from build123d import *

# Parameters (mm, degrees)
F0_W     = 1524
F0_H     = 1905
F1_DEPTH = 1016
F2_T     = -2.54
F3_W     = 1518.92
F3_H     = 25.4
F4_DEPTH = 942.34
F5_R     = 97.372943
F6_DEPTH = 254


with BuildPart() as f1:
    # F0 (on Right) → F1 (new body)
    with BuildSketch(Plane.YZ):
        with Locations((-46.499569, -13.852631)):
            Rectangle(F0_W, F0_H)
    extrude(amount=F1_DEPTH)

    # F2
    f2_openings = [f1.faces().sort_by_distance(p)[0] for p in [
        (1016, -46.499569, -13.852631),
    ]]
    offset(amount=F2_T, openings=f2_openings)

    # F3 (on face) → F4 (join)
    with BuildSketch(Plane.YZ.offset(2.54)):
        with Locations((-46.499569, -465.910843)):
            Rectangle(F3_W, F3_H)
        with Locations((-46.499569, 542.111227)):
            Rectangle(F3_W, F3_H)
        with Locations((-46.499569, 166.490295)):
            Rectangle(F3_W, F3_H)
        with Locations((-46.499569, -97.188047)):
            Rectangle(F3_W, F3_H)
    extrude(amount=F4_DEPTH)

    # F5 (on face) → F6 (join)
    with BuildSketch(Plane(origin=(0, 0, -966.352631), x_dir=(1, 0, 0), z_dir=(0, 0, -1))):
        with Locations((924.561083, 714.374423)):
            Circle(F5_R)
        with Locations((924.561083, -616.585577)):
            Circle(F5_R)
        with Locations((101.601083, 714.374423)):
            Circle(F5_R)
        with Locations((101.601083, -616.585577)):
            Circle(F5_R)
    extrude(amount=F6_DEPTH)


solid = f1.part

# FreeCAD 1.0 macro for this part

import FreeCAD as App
import Part
import Sketcher

V = App.Vector
Q = App.Units.Quantity


def faces_at(feature, points):
    """Names of the faces that lie closest to the given points."""
    faces = feature.Shape.Faces
    near = lambda p: min(range(len(faces)), key=lambda i: faces[i].distToShape(Part.Vertex(*p))[0])
    return sorted({f"Face{near(p) + 1}" for p in points})

doc = App.newDocument("Part")
body = doc.addObject("PartDesign::Body", "Body")

sketch1 = body.newObject("Sketcher::SketchObject", "Sketch")
sketch1.AttachmentSupport = (doc.getObject("YZ_Plane"), [""])
sketch1.MapMode = "FlatFace"
sketch1.addGeometry([
    Part.LineSegment(V(-808.499569, 938.647369, 0), V(-808.499569, -966.352631, 0)),
    Part.LineSegment(V(-808.499569, -966.352631, 0), V(715.500431, -966.352631, 0)),
    Part.LineSegment(V(715.500431, -966.352631, 0), V(715.500431, 938.647369, 0)),
    Part.LineSegment(V(715.500431, 938.647369, 0), V(-808.499569, 938.647369, 0)),
], False)
sketch1.addConstraint([
    Sketcher.Constraint("Coincident", 0, 2, 1, 1),
    Sketcher.Constraint("Coincident", 1, 2, 2, 1),
    Sketcher.Constraint("Coincident", 2, 2, 3, 1),
    Sketcher.Constraint("Coincident", 3, 2, 0, 1),
    Sketcher.Constraint("Vertical", 0),
    Sketcher.Constraint("Horizontal", 1),
    Sketcher.Constraint("Vertical", 2),
    Sketcher.Constraint("Horizontal", 3),
    Sketcher.Constraint("DistanceX", 1, 1, 1, 2, Q("60 in")),
    Sketcher.Constraint("DistanceY", 0, 2, 0, 1, Q("75 in")),
    Sketcher.Constraint("DistanceX", 0, 2, -1, 1, Q("808.499569 mm")),
    Sketcher.Constraint("DistanceY", 0, 2, -1, 1, Q("966.352631 mm")),
])
pad1 = body.newObject("PartDesign::Pad", "Pad")
pad1.Profile = sketch1
pad1.Length = Q("40 in")
doc.recompute()

thickness = body.newObject("PartDesign::Thickness", "Thickness")
thickness.Base = (pad1, faces_at(pad1, [(1016, -46.5, -13.853)]))
thickness.Value = Q("0.1 in")
thickness.Reversed = True
thickness.Join = "Arc"

sketch2 = body.newObject("Sketcher::SketchObject", "Sketch001")
sketch2.AttachmentSupport = (doc.getObject("YZ_Plane"), [""])
sketch2.MapMode = "FlatFace"
sketch2.AttachmentOffset = App.Placement(V(0, 0, 0.1 * 25.4), App.Rotation())
sketch2.addGeometry([
    Part.LineSegment(V(-805.959569, -453.210843, 0), V(-805.959569, -478.610843, 0)),
    Part.LineSegment(V(-805.959569, -478.610843, 0), V(712.960431, -478.610843, 0)),
    Part.LineSegment(V(712.960431, -478.610843, 0), V(712.960431, -453.210843, 0)),
    Part.LineSegment(V(712.960431, -453.210843, 0), V(-805.959569, -453.210843, 0)),
    Part.LineSegment(V(-805.959569, 554.811227, 0), V(-805.959569, 529.411227, 0)),
    Part.LineSegment(V(-805.959569, 529.411227, 0), V(712.960431, 529.411227, 0)),
    Part.LineSegment(V(712.960431, 529.411227, 0), V(712.960431, 554.811227, 0)),
    Part.LineSegment(V(712.960431, 554.811227, 0), V(-805.959569, 554.811227, 0)),
    Part.LineSegment(V(-805.959569, 179.190295, 0), V(-805.959569, 153.790295, 0)),
    Part.LineSegment(V(-805.959569, 153.790295, 0), V(712.960431, 153.790295, 0)),
    Part.LineSegment(V(712.960431, 153.790295, 0), V(712.960431, 179.190295, 0)),
    Part.LineSegment(V(712.960431, 179.190295, 0), V(-805.959569, 179.190295, 0)),
    Part.LineSegment(V(-805.959569, -84.488047, 0), V(-805.959569, -109.888047, 0)),
    Part.LineSegment(V(-805.959569, -109.888047, 0), V(712.960431, -109.888047, 0)),
    Part.LineSegment(V(712.960431, -109.888047, 0), V(712.960431, -84.488047, 0)),
    Part.LineSegment(V(712.960431, -84.488047, 0), V(-805.959569, -84.488047, 0)),
], False)
sketch2.addConstraint([
    Sketcher.Constraint("Coincident", 0, 2, 1, 1),
    Sketcher.Constraint("Coincident", 1, 2, 2, 1),
    Sketcher.Constraint("Coincident", 2, 2, 3, 1),
    Sketcher.Constraint("Coincident", 3, 2, 0, 1),
    Sketcher.Constraint("Coincident", 4, 2, 5, 1),
    Sketcher.Constraint("Coincident", 5, 2, 6, 1),
    Sketcher.Constraint("Coincident", 6, 2, 7, 1),
    Sketcher.Constraint("Coincident", 7, 2, 4, 1),
    Sketcher.Constraint("Coincident", 8, 2, 9, 1),
    Sketcher.Constraint("Coincident", 9, 2, 10, 1),
    Sketcher.Constraint("Coincident", 10, 2, 11, 1),
    Sketcher.Constraint("Coincident", 11, 2, 8, 1),
    Sketcher.Constraint("Coincident", 12, 2, 13, 1),
    Sketcher.Constraint("Coincident", 13, 2, 14, 1),
    Sketcher.Constraint("Coincident", 14, 2, 15, 1),
    Sketcher.Constraint("Coincident", 15, 2, 12, 1),
    Sketcher.Constraint("Vertical", 0),
    Sketcher.Constraint("Horizontal", 1),
    Sketcher.Constraint("Vertical", 2),
    Sketcher.Constraint("Horizontal", 3),
    Sketcher.Constraint("Vertical", 4),
    Sketcher.Constraint("Horizontal", 5),
    Sketcher.Constraint("Vertical", 6),
    Sketcher.Constraint("Horizontal", 7),
    Sketcher.Constraint("Vertical", 8),
    Sketcher.Constraint("Horizontal", 9),
    Sketcher.Constraint("Vertical", 10),
    Sketcher.Constraint("Horizontal", 11),
    Sketcher.Constraint("Vertical", 12),
    Sketcher.Constraint("Horizontal", 13),
    Sketcher.Constraint("Vertical", 14),
    Sketcher.Constraint("Horizontal", 15),
    Sketcher.Constraint("Vertical", 3, 2, 4, 2),
    Sketcher.Constraint("Vertical", 2, 2, 5, 2),
    Sketcher.Constraint("Vertical", 7, 2, 8, 2),
    Sketcher.Constraint("Vertical", 6, 2, 9, 2),
    Sketcher.Constraint("Vertical", 11, 2, 12, 2),
    Sketcher.Constraint("Vertical", 10, 2, 13, 2),
    Sketcher.Constraint("Equal", 2, 4),
    Sketcher.Constraint("Equal", 6, 8),
    Sketcher.Constraint("Equal", 10, 12),
    Sketcher.Constraint("DistanceY", 0, 2, 0, 1, Q("1 in")),
    Sketcher.Constraint("DistanceX", 1, 1, 1, 2, Q("59.8 in")),
    Sketcher.Constraint("DistanceX", 0, 2, -1, 1, Q("805.959569 mm")),
    Sketcher.Constraint("DistanceY", 3, 2, 4, 2, Q("982.62207 mm")),
    Sketcher.Constraint("DistanceY", 8, 2, 7, 2, Q("401.020932 mm")),
    Sketcher.Constraint("DistanceY", 12, 2, 8, 2, Q("263.678342 mm")),
    Sketcher.Constraint("DistanceY", 0, 2, -1, 1, Q("478.610843 mm")),
])
pad2 = body.newObject("PartDesign::Pad", "Pad001")
pad2.Profile = sketch2
pad2.Length = Q("37.1 in")

sketch3 = body.newObject("Sketcher::SketchObject", "Sketch002")
sketch3.AttachmentSupport = (doc.getObject("XY_Plane"), [""])
sketch3.MapMode = "FlatFace"
sketch3.AttachmentOffset = App.Placement(V(0, 0, -966.352631), App.Rotation())
sketch3.addGeometry([
    Part.Circle(V(924.561083, -714.374423, 0), V(0, 0, 1), 97.372943),
    Part.Circle(V(924.561083, 616.585577, 0), V(0, 0, 1), 97.372943),
    Part.Circle(V(101.601083, -714.374423, 0), V(0, 0, 1), 97.372943),
    Part.Circle(V(101.601083, 616.585577, 0), V(0, 0, 1), 97.372943),
], False)
sketch3.addConstraint([
    Sketcher.Constraint("Equal", 0, 1),
    Sketcher.Constraint("Equal", 1, 2),
    Sketcher.Constraint("Equal", 2, 3),
    Sketcher.Constraint("Horizontal", 0, 3, 2, 3),
    Sketcher.Constraint("Horizontal", 1, 3, 3, 3),
    Sketcher.Constraint("Vertical", 0, 3, 1, 3),
    Sketcher.Constraint("Vertical", 2, 3, 3, 3),
    Sketcher.Constraint("DistanceY", 0, 3, 1, 3, Q("52.4 in")),
    Sketcher.Constraint("DistanceX", 2, 3, 0, 3, Q("32.4 in")),
    Sketcher.Constraint("Diameter", 0, Q("194.745886 mm")),
    Sketcher.Constraint("DistanceX", -1, 1, 0, 3, Q("924.561083 mm")),
    Sketcher.Constraint("DistanceY", 0, 3, -1, 1, Q("714.374423 mm")),
])
pad3 = body.newObject("PartDesign::Pad", "Pad002")
pad3.Profile = sketch3
pad3.Length = Q("10 in")
pad3.Reversed = True

doc.recompute()
